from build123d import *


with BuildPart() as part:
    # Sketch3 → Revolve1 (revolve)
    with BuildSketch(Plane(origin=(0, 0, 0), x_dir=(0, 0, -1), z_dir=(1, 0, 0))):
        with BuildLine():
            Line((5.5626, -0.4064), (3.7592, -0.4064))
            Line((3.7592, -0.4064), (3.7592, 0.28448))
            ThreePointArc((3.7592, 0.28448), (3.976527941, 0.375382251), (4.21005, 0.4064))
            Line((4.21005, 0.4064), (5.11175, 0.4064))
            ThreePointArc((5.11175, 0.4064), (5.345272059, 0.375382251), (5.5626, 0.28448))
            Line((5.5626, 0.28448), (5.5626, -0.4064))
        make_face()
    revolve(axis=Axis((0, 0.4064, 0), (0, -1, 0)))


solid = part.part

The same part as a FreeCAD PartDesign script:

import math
import FreeCAD as App
import Part
import Sketcher
from FreeCAD import Vector
Q = App.Units.Quantity

doc = App.newDocument("Part")
params = doc.addObject("Spreadsheet::Sheet", "Params")
for row, (alias, value) in enumerate([
    ("sketch1_height", "0.071 in"),
    ("revolution_angle", "360 deg"),
], start=1):
    params.set(f"A{row}", alias)
    params.set(f"B{row}", "=" + value)
    params.setAlias(f"B{row}", alias)

body = doc.addObject("PartDesign::Body", "Body")

sketch1 = doc.addObject("Sketcher::SketchObject", "Sketch")
body.addObject(sketch1)
sketch1.AttachmentSupport = (doc.YZ_Plane, [""])
sketch1.MapMode = "FlatFace"
sketch1.addGeometry(Part.LineSegment(Vector(-0.41, -3.76, 0), Vector(-0.41, -5.56, 0)), False)
sketch1.addGeometry(Part.LineSegment(Vector(-0.41, -5.56, 0), Vector(0.28, -5.56, 0)), False)
sketch1.addGeometry(Part.ArcOfCircle(Part.Circle(Vector(-0.49, -5.11, 0), Vector(0, 0, 1), 0.89), math.radians(-30), math.radians(0)), False)
sketch1.addGeometry(Part.LineSegment(Vector(0.41, -5.11, 0), Vector(0.41, -4.21, 0)), False)
sketch1.addGeometry(Part.ArcOfCircle(Part.Circle(Vector(-0.49, -4.21, 0), Vector(0, 0, 1), 0.89), math.radians(0), math.radians(30)), False)
sketch1.addGeometry(Part.LineSegment(Vector(0.28, -3.76, 0), Vector(-0.41, -3.76, 0)), False)
sketch1.addConstraint(Sketcher.Constraint("Coincident", 0, 2, 1, 1))
sketch1.addConstraint(Sketcher.Constraint("Coincident", 1, 2, 2, 1))
sketch1.addConstraint(Sketcher.Constraint("Tangent", 2, 2, 3, 1))
sketch1.addConstraint(Sketcher.Constraint("Tangent", 3, 2, 4, 1))
sketch1.addConstraint(Sketcher.Constraint("Coincident", 4, 2, 5, 1))
sketch1.addConstraint(Sketcher.Constraint("Coincident", 5, 2, 0, 1))
sketch1.addConstraint(Sketcher.Constraint("Vertical", 0))
sketch1.addConstraint(Sketcher.Constraint("Horizontal", 1))
sketch1.addConstraint(Sketcher.Constraint("Vertical", 3))
sketch1.addConstraint(Sketcher.Constraint("Horizontal", 5))
sketch1.addConstraint(Sketcher.Constraint("Equal", 2, 4))
sketch1.addConstraint(Sketcher.Constraint("Vertical", 1, 2, 4, 2))
sketch1.addConstraint(Sketcher.Constraint("DistanceY", 0, 2, 0, 1, Q("0.071 in")))
sketch1.addConstraint(Sketcher.Constraint("DistanceX", 1, 1, 1, 2, Q("0.0272 in")))
sketch1.addConstraint(Sketcher.Constraint("DistanceY", 3, 1, 3, 2, Q("0.0355 in")))
sketch1.addConstraint(Sketcher.Constraint("DistanceX", 0, 2, -1, 1, Q("0.016 in")))
sketch1.addConstraint(Sketcher.Constraint("DistanceY", 0, 2, -1, 1, Q("0.219 in")))
sketch1.addConstraint(Sketcher.Constraint("DistanceX", -1, 1, 2, 2, Q("0.016 in")))
sketch1.setExpression("Constraints[12]", "Params.sketch1_height")
revolution = doc.addObject("PartDesign::Revolution", "Revolution")
body.addObject(revolution)
revolution.Profile = sketch1
revolution.ReferenceAxis = (sketch1, ["H_Axis"])
revolution.setExpression("Angle", "Params.revolution_angle")

doc.recompute()
